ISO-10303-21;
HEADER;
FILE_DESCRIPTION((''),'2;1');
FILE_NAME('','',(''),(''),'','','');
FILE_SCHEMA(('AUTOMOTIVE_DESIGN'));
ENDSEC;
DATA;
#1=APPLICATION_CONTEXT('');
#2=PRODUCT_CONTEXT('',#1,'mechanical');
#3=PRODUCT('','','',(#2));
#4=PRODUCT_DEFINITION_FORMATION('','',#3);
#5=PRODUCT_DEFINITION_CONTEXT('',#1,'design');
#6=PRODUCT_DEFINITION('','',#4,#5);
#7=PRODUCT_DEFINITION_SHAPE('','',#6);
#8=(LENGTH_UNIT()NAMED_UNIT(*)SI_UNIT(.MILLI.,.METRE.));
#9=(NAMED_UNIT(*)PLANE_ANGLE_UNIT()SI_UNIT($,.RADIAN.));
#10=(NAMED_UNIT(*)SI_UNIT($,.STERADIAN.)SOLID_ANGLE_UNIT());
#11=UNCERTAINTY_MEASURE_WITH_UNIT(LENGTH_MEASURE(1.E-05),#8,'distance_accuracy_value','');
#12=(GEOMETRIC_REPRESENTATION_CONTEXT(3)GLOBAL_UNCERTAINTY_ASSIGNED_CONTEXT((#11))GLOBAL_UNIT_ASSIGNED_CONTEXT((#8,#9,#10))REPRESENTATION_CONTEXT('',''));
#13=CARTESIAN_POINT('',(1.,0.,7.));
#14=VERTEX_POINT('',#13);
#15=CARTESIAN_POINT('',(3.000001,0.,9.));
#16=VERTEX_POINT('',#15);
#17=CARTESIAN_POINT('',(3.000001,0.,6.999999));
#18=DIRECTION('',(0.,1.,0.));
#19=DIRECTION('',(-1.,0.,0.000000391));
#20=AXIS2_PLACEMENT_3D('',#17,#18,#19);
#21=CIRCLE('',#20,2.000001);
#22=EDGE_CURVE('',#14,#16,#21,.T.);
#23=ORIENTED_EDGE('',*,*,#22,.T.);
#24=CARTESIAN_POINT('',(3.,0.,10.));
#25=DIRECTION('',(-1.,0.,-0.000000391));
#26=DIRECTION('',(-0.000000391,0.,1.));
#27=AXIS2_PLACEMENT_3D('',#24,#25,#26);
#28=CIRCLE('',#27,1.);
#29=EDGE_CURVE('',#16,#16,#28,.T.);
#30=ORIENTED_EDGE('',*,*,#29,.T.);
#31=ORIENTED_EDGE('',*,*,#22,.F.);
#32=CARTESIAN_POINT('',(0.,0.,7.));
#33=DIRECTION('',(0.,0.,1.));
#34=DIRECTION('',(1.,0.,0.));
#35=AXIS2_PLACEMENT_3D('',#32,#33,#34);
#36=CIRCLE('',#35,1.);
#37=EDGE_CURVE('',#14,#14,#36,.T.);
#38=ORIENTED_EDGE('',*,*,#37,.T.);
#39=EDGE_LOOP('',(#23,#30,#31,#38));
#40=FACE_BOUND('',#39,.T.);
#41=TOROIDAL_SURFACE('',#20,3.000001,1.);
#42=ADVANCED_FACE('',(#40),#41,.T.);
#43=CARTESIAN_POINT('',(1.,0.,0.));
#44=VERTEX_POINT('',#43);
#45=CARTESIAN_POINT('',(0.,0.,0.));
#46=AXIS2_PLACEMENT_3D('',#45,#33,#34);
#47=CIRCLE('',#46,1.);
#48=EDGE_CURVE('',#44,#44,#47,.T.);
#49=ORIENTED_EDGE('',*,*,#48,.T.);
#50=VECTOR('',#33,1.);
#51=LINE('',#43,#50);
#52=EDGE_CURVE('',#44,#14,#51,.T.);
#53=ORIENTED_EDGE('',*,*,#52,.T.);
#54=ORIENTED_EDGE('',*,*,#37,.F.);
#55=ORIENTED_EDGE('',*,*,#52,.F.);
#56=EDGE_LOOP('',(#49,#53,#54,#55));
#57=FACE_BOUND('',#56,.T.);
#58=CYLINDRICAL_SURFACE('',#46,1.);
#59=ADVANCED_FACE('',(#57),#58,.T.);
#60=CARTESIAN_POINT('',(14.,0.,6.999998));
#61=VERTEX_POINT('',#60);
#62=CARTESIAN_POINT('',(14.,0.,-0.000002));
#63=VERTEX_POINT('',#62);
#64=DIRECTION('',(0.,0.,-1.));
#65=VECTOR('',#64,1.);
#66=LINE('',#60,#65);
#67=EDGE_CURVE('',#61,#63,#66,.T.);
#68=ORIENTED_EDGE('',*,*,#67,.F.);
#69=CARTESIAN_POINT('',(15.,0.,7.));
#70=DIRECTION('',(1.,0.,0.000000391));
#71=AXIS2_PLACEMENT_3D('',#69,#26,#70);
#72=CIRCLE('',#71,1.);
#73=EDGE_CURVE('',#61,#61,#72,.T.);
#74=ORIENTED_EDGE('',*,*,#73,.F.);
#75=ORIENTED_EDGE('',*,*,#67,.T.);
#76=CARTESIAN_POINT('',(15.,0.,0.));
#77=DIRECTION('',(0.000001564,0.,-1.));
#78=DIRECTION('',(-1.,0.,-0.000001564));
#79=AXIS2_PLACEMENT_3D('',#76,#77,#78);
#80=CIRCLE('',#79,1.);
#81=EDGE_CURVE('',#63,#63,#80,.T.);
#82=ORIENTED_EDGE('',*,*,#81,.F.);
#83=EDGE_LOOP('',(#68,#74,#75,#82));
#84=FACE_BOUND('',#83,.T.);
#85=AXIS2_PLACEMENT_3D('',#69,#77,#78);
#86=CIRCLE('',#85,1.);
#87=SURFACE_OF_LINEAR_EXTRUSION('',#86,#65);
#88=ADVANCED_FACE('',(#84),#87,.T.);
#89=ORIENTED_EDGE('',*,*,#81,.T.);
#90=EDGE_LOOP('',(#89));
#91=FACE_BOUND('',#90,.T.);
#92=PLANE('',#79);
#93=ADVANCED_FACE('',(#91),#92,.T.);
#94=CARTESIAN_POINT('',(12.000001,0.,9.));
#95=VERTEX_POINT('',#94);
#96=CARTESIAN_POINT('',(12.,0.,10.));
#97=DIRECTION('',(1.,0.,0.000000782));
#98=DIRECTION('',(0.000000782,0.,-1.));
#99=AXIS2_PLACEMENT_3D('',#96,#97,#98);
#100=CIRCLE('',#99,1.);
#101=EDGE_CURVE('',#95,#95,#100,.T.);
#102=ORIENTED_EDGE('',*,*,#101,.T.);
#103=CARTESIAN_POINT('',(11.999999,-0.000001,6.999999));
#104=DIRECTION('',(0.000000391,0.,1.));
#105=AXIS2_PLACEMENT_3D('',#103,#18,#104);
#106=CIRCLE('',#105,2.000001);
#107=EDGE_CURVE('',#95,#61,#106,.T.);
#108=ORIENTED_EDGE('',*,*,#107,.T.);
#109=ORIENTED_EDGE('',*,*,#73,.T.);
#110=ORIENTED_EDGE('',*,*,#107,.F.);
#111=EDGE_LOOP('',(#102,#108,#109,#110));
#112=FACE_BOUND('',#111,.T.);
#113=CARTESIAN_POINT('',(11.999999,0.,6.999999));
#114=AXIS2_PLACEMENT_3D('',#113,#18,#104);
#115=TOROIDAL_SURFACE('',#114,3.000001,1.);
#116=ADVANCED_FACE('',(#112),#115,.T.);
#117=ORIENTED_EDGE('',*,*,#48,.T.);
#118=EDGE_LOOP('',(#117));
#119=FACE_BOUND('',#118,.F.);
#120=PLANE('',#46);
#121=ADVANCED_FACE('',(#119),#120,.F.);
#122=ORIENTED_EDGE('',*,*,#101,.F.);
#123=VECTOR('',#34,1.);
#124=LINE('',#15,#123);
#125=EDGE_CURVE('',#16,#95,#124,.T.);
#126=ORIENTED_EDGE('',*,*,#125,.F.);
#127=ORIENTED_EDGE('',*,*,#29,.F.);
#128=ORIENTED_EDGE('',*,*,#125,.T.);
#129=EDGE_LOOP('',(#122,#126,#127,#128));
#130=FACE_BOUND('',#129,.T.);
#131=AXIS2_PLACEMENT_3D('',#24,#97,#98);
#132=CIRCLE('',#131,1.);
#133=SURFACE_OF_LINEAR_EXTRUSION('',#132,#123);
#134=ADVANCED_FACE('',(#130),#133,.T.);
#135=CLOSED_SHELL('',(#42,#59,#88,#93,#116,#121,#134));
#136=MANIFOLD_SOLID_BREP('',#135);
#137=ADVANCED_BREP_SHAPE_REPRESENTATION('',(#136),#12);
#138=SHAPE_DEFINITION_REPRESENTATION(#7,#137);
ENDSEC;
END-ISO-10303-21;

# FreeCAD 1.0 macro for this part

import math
import FreeCAD as App
import Part
import Sketcher
from FreeCAD import Vector
Q = App.Units.Quantity

doc = App.newDocument("Part")
body = doc.addObject("PartDesign::Body", "Body")

# Sketch on XY plane
sketch1 = body.newObject("Sketcher::SketchObject", "Sketch")
sketch1.AttachmentSupport = (doc.getObject("XY_Plane"), [""])
sketch1.MapMode = "FlatFace"
sketch1.addGeometry(Part.Circle(Vector(0, 0, 0), Vector(0, 0, 1), 1), False)
sketch1.addConstraint([
    Sketcher.Constraint("Coincident", 0, 3, -1, 1),
    Sketcher.Constraint("Diameter", 0, Q("2 mm")),
])

# Sketch on XZ plane
sketch2 = body.newObject("Sketcher::SketchObject", "Sketch001")
sketch2.AttachmentSupport = (doc.getObject("XZ_Plane"), [""])
sketch2.MapMode = "FlatFace"
sketch2.addGeometry([
    Part.LineSegment(Vector(0, 0, 0), Vector(0, 7, 0)),  # 0
    Part.ArcOfCircle(Part.Circle(Vector(3, 7, 0), Vector(0, 0, 1), 3), math.radians(90), math.radians(180)),  # 1
    Part.LineSegment(Vector(3, 10, 0), Vector(12, 10, 0)),  # 2
    Part.ArcOfCircle(Part.Circle(Vector(12, 7, 0), Vector(0, 0, 1), 3), math.radians(0), math.radians(90)),  # 3
    Part.LineSegment(Vector(15, 7, 0), Vector(15, 0, 0)),  # 4
], False)
sketch2.addConstraint([
    Sketcher.Constraint("Tangent", 0, 2, 1, 2),
    Sketcher.Constraint("Tangent", 1, 1, 2, 1),
    Sketcher.Constraint("Tangent", 2, 2, 3, 2),
    Sketcher.Constraint("Tangent", 3, 1, 4, 1),
    Sketcher.Constraint("Vertical", 0),
    Sketcher.Constraint("Horizontal", 2),
    Sketcher.Constraint("Vertical", 4),
    Sketcher.Constraint("Coincident", 0, 1, -1, 1),
    Sketcher.Constraint("Equal", 1, 3),
    Sketcher.Constraint("PointOnObject", 4, 2, -1),
    Sketcher.Constraint("Radius", 1, Q("3.000001 mm")),
    Sketcher.Constraint("DistanceX", 2, 1, 2, 2, Q("9 mm")),
    Sketcher.Constraint("DistanceY", 0, 1, 0, 2, Q("7 mm")),
])
doc.recompute()

additivepipe = body.newObject("PartDesign::AdditivePipe", "AdditivePipe")
additivepipe.Profile = sketch1
additivepipe.Spine = (sketch2, ["Edge1", "Edge2", "Edge3", "Edge4", "Edge5"])

doc.recompute()
